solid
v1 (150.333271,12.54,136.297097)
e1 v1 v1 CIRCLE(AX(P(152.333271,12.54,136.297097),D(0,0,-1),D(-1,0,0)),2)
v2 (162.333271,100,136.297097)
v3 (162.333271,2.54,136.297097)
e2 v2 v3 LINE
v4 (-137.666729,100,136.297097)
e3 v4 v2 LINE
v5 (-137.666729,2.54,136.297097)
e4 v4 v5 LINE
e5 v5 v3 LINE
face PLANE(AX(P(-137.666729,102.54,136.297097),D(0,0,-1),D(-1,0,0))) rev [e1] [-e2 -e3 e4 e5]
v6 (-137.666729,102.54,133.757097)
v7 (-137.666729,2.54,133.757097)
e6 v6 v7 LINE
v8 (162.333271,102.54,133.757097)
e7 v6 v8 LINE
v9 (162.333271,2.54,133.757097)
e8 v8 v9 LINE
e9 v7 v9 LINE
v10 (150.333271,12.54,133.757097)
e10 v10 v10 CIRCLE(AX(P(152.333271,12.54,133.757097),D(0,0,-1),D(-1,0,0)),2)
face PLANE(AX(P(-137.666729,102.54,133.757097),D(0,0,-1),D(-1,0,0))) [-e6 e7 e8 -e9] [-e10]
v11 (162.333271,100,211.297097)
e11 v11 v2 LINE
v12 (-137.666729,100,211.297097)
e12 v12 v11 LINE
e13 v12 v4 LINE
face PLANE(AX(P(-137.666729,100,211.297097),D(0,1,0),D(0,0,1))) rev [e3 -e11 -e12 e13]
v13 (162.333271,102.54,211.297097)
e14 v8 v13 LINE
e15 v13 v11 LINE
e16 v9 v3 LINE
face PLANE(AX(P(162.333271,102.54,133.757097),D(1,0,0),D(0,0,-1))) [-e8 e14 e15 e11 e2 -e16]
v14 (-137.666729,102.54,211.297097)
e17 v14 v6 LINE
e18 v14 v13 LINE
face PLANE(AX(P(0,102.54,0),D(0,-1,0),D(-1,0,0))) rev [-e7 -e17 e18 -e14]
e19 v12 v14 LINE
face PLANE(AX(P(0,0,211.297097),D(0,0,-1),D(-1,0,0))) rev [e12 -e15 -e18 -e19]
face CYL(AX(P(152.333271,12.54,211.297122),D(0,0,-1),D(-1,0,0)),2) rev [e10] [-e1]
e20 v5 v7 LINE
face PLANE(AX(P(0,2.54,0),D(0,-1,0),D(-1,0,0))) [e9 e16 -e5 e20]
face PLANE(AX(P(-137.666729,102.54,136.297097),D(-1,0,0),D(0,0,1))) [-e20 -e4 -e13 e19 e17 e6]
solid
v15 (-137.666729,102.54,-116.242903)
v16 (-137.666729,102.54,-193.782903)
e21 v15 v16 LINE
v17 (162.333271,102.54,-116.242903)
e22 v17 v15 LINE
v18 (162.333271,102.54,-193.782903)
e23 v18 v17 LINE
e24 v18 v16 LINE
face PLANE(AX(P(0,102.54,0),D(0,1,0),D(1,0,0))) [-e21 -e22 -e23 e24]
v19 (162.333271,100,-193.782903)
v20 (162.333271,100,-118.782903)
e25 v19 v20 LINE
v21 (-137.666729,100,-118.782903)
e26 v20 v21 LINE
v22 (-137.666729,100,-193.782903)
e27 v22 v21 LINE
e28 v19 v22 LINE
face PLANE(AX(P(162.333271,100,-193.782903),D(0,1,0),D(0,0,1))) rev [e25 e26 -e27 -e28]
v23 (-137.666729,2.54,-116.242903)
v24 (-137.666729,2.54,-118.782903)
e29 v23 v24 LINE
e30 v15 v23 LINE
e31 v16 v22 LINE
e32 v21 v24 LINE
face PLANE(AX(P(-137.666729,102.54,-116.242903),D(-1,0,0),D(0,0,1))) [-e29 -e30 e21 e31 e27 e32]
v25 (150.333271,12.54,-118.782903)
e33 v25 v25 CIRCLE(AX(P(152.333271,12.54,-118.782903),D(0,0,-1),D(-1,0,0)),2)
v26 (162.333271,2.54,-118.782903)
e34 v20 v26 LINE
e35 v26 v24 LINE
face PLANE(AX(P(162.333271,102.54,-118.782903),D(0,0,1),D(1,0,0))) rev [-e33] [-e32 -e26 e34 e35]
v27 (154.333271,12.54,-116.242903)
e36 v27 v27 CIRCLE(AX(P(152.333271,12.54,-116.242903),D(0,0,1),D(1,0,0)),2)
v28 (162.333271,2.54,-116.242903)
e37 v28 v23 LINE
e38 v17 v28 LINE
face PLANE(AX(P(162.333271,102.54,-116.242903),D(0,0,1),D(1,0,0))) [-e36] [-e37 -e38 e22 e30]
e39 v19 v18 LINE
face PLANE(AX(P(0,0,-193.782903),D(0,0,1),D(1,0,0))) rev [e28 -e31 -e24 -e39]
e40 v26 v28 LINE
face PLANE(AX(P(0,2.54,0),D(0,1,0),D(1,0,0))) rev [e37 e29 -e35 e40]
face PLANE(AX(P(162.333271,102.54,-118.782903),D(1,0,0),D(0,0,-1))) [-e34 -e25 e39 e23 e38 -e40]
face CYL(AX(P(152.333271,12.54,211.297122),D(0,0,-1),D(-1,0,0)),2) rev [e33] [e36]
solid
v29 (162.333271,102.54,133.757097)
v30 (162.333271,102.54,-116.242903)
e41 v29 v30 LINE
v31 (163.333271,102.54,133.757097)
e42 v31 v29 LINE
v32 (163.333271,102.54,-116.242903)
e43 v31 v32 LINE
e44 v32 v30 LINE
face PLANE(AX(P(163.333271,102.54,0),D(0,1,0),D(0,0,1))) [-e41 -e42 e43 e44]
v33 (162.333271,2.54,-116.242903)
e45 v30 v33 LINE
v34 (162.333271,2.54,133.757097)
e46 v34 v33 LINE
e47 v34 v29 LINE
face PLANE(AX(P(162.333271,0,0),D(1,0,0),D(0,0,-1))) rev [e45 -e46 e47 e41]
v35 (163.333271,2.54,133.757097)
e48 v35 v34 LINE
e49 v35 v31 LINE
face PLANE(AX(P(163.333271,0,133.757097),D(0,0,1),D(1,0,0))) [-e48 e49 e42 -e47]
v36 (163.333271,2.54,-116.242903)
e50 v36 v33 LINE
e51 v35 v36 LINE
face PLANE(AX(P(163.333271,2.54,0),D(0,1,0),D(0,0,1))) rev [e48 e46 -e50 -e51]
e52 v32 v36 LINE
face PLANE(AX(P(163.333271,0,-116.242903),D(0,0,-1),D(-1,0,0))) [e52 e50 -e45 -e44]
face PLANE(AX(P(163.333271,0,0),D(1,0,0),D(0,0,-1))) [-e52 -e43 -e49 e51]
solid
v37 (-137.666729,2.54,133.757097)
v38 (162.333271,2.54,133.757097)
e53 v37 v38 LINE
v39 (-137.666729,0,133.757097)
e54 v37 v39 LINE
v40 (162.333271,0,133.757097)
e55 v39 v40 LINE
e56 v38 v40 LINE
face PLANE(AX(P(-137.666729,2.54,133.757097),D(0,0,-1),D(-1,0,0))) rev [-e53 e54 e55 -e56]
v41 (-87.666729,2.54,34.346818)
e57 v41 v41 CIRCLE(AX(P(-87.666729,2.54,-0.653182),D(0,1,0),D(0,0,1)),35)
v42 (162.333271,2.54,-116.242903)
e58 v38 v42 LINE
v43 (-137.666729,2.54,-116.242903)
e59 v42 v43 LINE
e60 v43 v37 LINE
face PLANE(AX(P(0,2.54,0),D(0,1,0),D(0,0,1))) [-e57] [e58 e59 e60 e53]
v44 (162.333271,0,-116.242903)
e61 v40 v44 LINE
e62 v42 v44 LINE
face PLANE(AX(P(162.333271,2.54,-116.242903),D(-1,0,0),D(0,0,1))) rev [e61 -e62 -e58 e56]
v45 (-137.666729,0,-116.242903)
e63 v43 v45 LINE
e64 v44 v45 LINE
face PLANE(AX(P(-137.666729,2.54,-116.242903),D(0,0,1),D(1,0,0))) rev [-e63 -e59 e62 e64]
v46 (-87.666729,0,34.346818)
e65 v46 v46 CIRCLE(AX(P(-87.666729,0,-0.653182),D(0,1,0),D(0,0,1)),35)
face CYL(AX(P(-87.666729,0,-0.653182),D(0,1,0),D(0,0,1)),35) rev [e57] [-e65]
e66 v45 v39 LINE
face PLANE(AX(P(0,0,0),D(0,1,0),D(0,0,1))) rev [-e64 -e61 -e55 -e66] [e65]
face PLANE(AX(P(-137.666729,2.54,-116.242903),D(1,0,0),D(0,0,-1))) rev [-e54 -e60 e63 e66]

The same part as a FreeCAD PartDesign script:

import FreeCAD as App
import Part
import Sketcher

V = App.Vector

doc = App.newDocument("Part")
body = doc.addObject("PartDesign::Body", "Body")

sketch1 = body.newObject("Sketcher::SketchObject", "Sketch")
sketch1.AttachmentSupport = (doc.getObject("XZ_Plane"), [""])
sketch1.MapMode = "FlatFace"
sketch1.addGeometry(Part.LineSegment(V(-138, -116, 0), V(-138, 134, 0)), False)
sketch1.addGeometry(Part.LineSegment(V(-138, 134, 0), V(162, 134, 0)), False)
sketch1.addGeometry(Part.LineSegment(V(162, 134, 0), V(162, -116, 0)), False)
sketch1.addGeometry(Part.LineSegment(V(162, -116, 0), V(-138, -116, 0)), False)
sketch1.addConstraint(Sketcher.Constraint("Coincident", 0, 2, 1, 1))
sketch1.addConstraint(Sketcher.Constraint("Coincident", 1, 2, 2, 1))
sketch1.addConstraint(Sketcher.Constraint("Coincident", 2, 2, 3, 1))
sketch1.addConstraint(Sketcher.Constraint("Coincident", 3, 2, 0, 1))
sketch1.addConstraint(Sketcher.Constraint("Vertical", 0))
sketch1.addConstraint(Sketcher.Constraint("Horizontal", 1))
sketch1.addConstraint(Sketcher.Constraint("Vertical", 2))
sketch1.addConstraint(Sketcher.Constraint("Horizontal", 3))
sketch1.addConstraint(Sketcher.Constraint("DistanceX", 1, 1, 1, 2, 300.0))
sketch1.addConstraint(Sketcher.Constraint("DistanceY", 0, 1, 0, 2, 250.0))
sketch1.addConstraint(Sketcher.Constraint("DistanceX", 0, 2, -1, 1, 137.666729))
sketch1.addConstraint(Sketcher.Constraint("DistanceY", -1, 1, 0, 2, 133.757097))
pad1 = body.newObject("PartDesign::Pad", "Pad")
pad1.Profile = sketch1
pad1.Length = 2.54
pad1.Reversed = True

sketch2 = body.newObject("Sketcher::SketchObject", "Sketch001")
sketch2.AttachmentSupport = (doc.getObject("XZ_Plane"), [""])
sketch2.MapMode = "FlatFace"
sketch2.AttachmentOffset = App.Placement(V(0, 0, -2.54), App.Rotation())
sketch2.addGeometry(Part.Circle(V(-88, -1, 0), V(0, 0, 1), 35), False)
sketch2.addConstraint(Sketcher.Constraint("Diameter", 0, 70.0))
sketch2.addConstraint(Sketcher.Constraint("DistanceX", 0, 3, -1, 1, 87.666729))
sketch2.addConstraint(Sketcher.Constraint("DistanceY", 0, 3, -1, 1, 0.653182))
pocket1 = body.newObject("PartDesign::Pocket", "Pocket")
pocket1.Profile = sketch2
pocket1.Type = "ThroughAll"
pocket1.Midplane = True
body2 = doc.addObject("PartDesign::Body", "Body001")

sketch3 = body2.newObject("Sketcher::SketchObject", "Sketch002")
sketch3.AttachmentSupport = (doc.getObject("XZ_Plane001"), [""])
sketch3.MapMode = "FlatFace"
sketch3.AttachmentOffset = App.Placement(V(0, 0, -2.54), App.Rotation())
sketch3.addGeometry(Part.LineSegment(V(-137.7, 133.8, 0), V(-137.7, 136.3, 0)), False)
sketch3.addGeometry(Part.LineSegment(V(-137.7, 136.3, 0), V(162.3, 136.3, 0)), False)
sketch3.addGeometry(Part.LineSegment(V(162.3, 136.3, 0), V(162.3, 133.8, 0)), False)
sketch3.addGeometry(Part.LineSegment(V(162.3, 133.8, 0), V(-137.7, 133.8, 0)), False)
sketch3.addConstraint(Sketcher.Constraint("Coincident", 0, 2, 1, 1))
sketch3.addConstraint(Sketcher.Constraint("Coincident", 1, 2, 2, 1))
sketch3.addConstraint(Sketcher.Constraint("Coincident", 2, 2, 3, 1))
sketch3.addConstraint(Sketcher.Constraint("Coincident", 3, 2, 0, 1))
sketch3.addConstraint(Sketcher.Constraint("Vertical", 0))
sketch3.addConstraint(Sketcher.Constraint("Horizontal", 1))
sketch3.addConstraint(Sketcher.Constraint("Vertical", 2))
sketch3.addConstraint(Sketcher.Constraint("Horizontal", 3))
sketch3.addConstraint(Sketcher.Constraint("DistanceX", 1, 1, 1, 2, 300.0))
sketch3.addConstraint(Sketcher.Constraint("DistanceY", 0, 1, 0, 2, 2.54))
sketch3.addConstraint(Sketcher.Constraint("DistanceX", 0, 2, -1, 1, 137.666729))
sketch3.addConstraint(Sketcher.Constraint("DistanceY", -1, 1, 0, 2, 136.297097))
pad2 = body2.newObject("PartDesign::Pad", "Pad001")
pad2.Profile = sketch3
pad2.Length = 100
pad2.Reversed = True

sketch4 = body2.newObject("Sketcher::SketchObject", "Sketch003")
sketch4.AttachmentSupport = (doc.getObject("XY_Plane001"), [""])
sketch4.MapMode = "FlatFace"
sketch4.AttachmentOffset = App.Placement(V(0, 0, 136.297097), App.Rotation())
sketch4.addGeometry(Part.LineSegment(V(-137.7, 102.5, 0), V(-137.7, 100, 0)), False)
sketch4.addGeometry(Part.LineSegment(V(-137.7, 100, 0), V(162.3, 100, 0)), False)
sketch4.addGeometry(Part.LineSegment(V(162.3, 100, 0), V(162.3, 102.5, 0)), False)
sketch4.addGeometry(Part.LineSegment(V(162.3, 102.5, 0), V(-137.7, 102.5, 0)), False)
sketch4.addConstraint(Sketcher.Constraint("Coincident", 0, 2, 1, 1))
sketch4.addConstraint(Sketcher.Constraint("Coincident", 1, 2, 2, 1))
sketch4.addConstraint(Sketcher.Constraint("Coincident", 2, 2, 3, 1))
sketch4.addConstraint(Sketcher.Constraint("Coincident", 3, 2, 0, 1))
sketch4.addConstraint(Sketcher.Constraint("Vertical", 0))
sketch4.addConstraint(Sketcher.Constraint("Horizontal", 1))
sketch4.addConstraint(Sketcher.Constraint("Vertical", 2))
sketch4.addConstraint(Sketcher.Constraint("Horizontal", 3))
sketch4.addConstraint(Sketcher.Constraint("DistanceX", 1, 1, 1, 2, 300.0))
sketch4.addConstraint(Sketcher.Constraint("DistanceY", -1, 1, 0, 2, 100.0))
sketch4.addConstraint(Sketcher.Constraint("DistanceY", 0, 2, 0, 1, 2.54))
sketch4.addConstraint(Sketcher.Constraint("DistanceX", 0, 2, -1, 1, 137.666729))
pad3 = body2.newObject("PartDesign::Pad", "Pad002")
pad3.Profile = sketch4
pad3.Length = 75
body3 = doc.addObject("PartDesign::Body", "Body002")

sketch5 = body3.newObject("Sketcher::SketchObject", "Sketch004")
sketch5.AttachmentSupport = (doc.getObject("XZ_Plane002"), [""])
sketch5.MapMode = "FlatFace"
sketch5.AttachmentOffset = App.Placement(V(0, 0, -2.54), App.Rotation())
sketch5.addGeometry(Part.LineSegment(V(-137.7, -118.8, 0), V(-137.7, -116.2, 0)), False)
sketch5.addGeometry(Part.LineSegment(V(-137.7, -116.2, 0), V(162.3, -116.2, 0)), False)
sketch5.addGeometry(Part.LineSegment(V(162.3, -116.2, 0), V(162.3, -118.8, 0)), False)
sketch5.addGeometry(Part.LineSegment(V(162.3, -118.8, 0), V(-137.7, -118.8, 0)), False)
sketch5.addConstraint(Sketcher.Constraint("Coincident", 0, 2, 1, 1))
sketch5.addConstraint(Sketcher.Constraint("Coincident", 1, 2, 2, 1))
sketch5.addConstraint(Sketcher.Constraint("Coincident", 2, 2, 3, 1))
sketch5.addConstraint(Sketcher.Constraint("Coincident", 3, 2, 0, 1))
sketch5.addConstraint(Sketcher.Constraint("Vertical", 0))
sketch5.addConstraint(Sketcher.Constraint("Horizontal", 1))
sketch5.addConstraint(Sketcher.Constraint("Vertical", 2))
sketch5.addConstraint(Sketcher.Constraint("Horizontal", 3))
sketch5.addConstraint(Sketcher.Constraint("DistanceX", 1, 1, 1, 2, 300.0))
sketch5.addConstraint(Sketcher.Constraint("DistanceY", 0, 1, 0, 2, 2.54))
sketch5.addConstraint(Sketcher.Constraint("DistanceX", 0, 2, -1, 1, 137.666729))
sketch5.addConstraint(Sketcher.Constraint("DistanceY", 0, 2, -1, 1, 116.242903))
pad4 = body3.newObject("PartDesign::Pad", "Pad003")
pad4.Profile = sketch5
pad4.Length = 100
pad4.Reversed = True

sketch6 = body3.newObject("Sketcher::SketchObject", "Sketch005")
sketch6.AttachmentSupport = (doc.getObject("XY_Plane002"), [""])
sketch6.MapMode = "FlatFace"
sketch6.AttachmentOffset = App.Placement(V(0, 0, -118.782903), App.Rotation())
sketch6.addGeometry(Part.LineSegment(V(162.3, 102.5, 0), V(162.3, 100, 0)), False)
sketch6.addGeometry(Part.LineSegment(V(162.3, 100, 0), V(-137.7, 100, 0)), False)
sketch6.addGeometry(Part.LineSegment(V(-137.7, 100, 0), V(-137.7, 102.5, 0)), False)
sketch6.addGeometry(Part.LineSegment(V(-137.7, 102.5, 0), V(162.3, 102.5, 0)), False)
sketch6.addConstraint(Sketcher.Constraint("Coincident", 0, 2, 1, 1))
sketch6.addConstraint(Sketcher.Constraint("Coincident", 1, 2, 2, 1))
sketch6.addConstraint(Sketcher.Constraint("Coincident", 2, 2, 3, 1))
sketch6.addConstraint(Sketcher.Constraint("Coincident", 3, 2, 0, 1))
sketch6.addConstraint(Sketcher.Constraint("Vertical", 0))
sketch6.addConstraint(Sketcher.Constraint("Horizontal", 1))
sketch6.addConstraint(Sketcher.Constraint("Vertical", 2))
sketch6.addConstraint(Sketcher.Constraint("Horizontal", 3))
sketch6.addConstraint(Sketcher.Constraint("DistanceX", 1, 2, 1, 1, 300.0))
sketch6.addConstraint(Sketcher.Constraint("DistanceY", -1, 1, 0, 2, 100.0))
sketch6.addConstraint(Sketcher.Constraint("DistanceY", 0, 2, 0, 1, 2.54))
sketch6.addConstraint(Sketcher.Constraint("DistanceX", -1, 1, 0, 2, 162.333271))
pad5 = body3.newObject("PartDesign::Pad", "Pad004")
pad5.Profile = sketch6
pad5.Length = 75
pad5.Reversed = True
body4 = doc.addObject("PartDesign::Body", "Body003")

sketch7 = body4.newObject("Sketcher::SketchObject", "Sketch006")
sketch7.AttachmentSupport = (doc.getObject("XY_Plane003"), [""])
sketch7.MapMode = "FlatFace"
sketch7.AttachmentOffset = App.Placement(V(0, 0, -118.782903), App.Rotation())
sketch7.addGeometry(Part.Circle(V(152.3, 12.5, 0), V(0, 0, 1), 2), False)
sketch7.addConstraint(Sketcher.Constraint("Diameter", 0, 4.0))
sketch7.addConstraint(Sketcher.Constraint("DistanceY", -1, 1, 0, 3, 12.54))
sketch7.addConstraint(Sketcher.Constraint("DistanceX", -1, 1, 0, 3, 152.333271))
pad6 = body4.newObject("PartDesign::Pad", "Pad005")
pad6.Profile = sketch7
pad6.Length = 331.08
doc.recompute()

body5 = doc.addObject("PartDesign::Body", "Body004")
body5.BaseFeature = body4
boolean = body2.newObject("PartDesign::Boolean", "Boolean")
boolean.Type = "Cut"
boolean.addObjects([body5])
doc.recompute()

boolean2 = body3.newObject("PartDesign::Boolean", "Boolean001")
boolean2.Type = "Cut"
boolean2.addObjects([body4])
body6 = doc.addObject("PartDesign::Body", "Body005")

sketch8 = body6.newObject("Sketcher::SketchObject", "Sketch007")
sketch8.AttachmentSupport = (doc.getObject("YZ_Plane005"), [""])
sketch8.MapMode = "FlatFace"
sketch8.AttachmentOffset = App.Placement(V(0, 0, 162.333271), App.Rotation())
sketch8.addGeometry(Part.LineSegment(V(103, 134, 0), V(3, 134, 0)), False)
sketch8.addGeometry(Part.LineSegment(V(3, 134, 0), V(3, -116, 0)), False)
sketch8.addGeometry(Part.LineSegment(V(3, -116, 0), V(103, -116, 0)), False)
sketch8.addGeometry(Part.LineSegment(V(103, -116, 0), V(103, 134, 0)), False)
sketch8.addConstraint(Sketcher.Constraint("Coincident", 0, 2, 1, 1))
sketch8.addConstraint(Sketcher.Constraint("Coincident", 1, 2, 2, 1))
sketch8.addConstraint(Sketcher.Constraint("Coincident", 2, 2, 3, 1))
sketch8.addConstraint(Sketcher.Constraint("Coincident", 3, 2, 0, 1))
sketch8.addConstraint(Sketcher.Constraint("Horizontal", 0))
sketch8.addConstraint(Sketcher.Constraint("Vertical", 1))
sketch8.addConstraint(Sketcher.Constraint("Horizontal", 2))
sketch8.addConstraint(Sketcher.Constraint("Vertical", 3))
sketch8.addConstraint(Sketcher.Constraint("DistanceX", 0, 2, 0, 1, 100.0))
sketch8.addConstraint(Sketcher.Constraint("DistanceY", 1, 2, 1, 1, 250.0))
sketch8.addConstraint(Sketcher.Constraint("DistanceX", -1, 1, 0, 2, 2.54))
sketch8.addConstraint(Sketcher.Constraint("DistanceY", -1, 1, 0, 2, 133.757097))
pad7 = body6.newObject("PartDesign::Pad", "Pad006")
pad7.Profile = sketch8
pad7.Length = 1

doc.recompute()
